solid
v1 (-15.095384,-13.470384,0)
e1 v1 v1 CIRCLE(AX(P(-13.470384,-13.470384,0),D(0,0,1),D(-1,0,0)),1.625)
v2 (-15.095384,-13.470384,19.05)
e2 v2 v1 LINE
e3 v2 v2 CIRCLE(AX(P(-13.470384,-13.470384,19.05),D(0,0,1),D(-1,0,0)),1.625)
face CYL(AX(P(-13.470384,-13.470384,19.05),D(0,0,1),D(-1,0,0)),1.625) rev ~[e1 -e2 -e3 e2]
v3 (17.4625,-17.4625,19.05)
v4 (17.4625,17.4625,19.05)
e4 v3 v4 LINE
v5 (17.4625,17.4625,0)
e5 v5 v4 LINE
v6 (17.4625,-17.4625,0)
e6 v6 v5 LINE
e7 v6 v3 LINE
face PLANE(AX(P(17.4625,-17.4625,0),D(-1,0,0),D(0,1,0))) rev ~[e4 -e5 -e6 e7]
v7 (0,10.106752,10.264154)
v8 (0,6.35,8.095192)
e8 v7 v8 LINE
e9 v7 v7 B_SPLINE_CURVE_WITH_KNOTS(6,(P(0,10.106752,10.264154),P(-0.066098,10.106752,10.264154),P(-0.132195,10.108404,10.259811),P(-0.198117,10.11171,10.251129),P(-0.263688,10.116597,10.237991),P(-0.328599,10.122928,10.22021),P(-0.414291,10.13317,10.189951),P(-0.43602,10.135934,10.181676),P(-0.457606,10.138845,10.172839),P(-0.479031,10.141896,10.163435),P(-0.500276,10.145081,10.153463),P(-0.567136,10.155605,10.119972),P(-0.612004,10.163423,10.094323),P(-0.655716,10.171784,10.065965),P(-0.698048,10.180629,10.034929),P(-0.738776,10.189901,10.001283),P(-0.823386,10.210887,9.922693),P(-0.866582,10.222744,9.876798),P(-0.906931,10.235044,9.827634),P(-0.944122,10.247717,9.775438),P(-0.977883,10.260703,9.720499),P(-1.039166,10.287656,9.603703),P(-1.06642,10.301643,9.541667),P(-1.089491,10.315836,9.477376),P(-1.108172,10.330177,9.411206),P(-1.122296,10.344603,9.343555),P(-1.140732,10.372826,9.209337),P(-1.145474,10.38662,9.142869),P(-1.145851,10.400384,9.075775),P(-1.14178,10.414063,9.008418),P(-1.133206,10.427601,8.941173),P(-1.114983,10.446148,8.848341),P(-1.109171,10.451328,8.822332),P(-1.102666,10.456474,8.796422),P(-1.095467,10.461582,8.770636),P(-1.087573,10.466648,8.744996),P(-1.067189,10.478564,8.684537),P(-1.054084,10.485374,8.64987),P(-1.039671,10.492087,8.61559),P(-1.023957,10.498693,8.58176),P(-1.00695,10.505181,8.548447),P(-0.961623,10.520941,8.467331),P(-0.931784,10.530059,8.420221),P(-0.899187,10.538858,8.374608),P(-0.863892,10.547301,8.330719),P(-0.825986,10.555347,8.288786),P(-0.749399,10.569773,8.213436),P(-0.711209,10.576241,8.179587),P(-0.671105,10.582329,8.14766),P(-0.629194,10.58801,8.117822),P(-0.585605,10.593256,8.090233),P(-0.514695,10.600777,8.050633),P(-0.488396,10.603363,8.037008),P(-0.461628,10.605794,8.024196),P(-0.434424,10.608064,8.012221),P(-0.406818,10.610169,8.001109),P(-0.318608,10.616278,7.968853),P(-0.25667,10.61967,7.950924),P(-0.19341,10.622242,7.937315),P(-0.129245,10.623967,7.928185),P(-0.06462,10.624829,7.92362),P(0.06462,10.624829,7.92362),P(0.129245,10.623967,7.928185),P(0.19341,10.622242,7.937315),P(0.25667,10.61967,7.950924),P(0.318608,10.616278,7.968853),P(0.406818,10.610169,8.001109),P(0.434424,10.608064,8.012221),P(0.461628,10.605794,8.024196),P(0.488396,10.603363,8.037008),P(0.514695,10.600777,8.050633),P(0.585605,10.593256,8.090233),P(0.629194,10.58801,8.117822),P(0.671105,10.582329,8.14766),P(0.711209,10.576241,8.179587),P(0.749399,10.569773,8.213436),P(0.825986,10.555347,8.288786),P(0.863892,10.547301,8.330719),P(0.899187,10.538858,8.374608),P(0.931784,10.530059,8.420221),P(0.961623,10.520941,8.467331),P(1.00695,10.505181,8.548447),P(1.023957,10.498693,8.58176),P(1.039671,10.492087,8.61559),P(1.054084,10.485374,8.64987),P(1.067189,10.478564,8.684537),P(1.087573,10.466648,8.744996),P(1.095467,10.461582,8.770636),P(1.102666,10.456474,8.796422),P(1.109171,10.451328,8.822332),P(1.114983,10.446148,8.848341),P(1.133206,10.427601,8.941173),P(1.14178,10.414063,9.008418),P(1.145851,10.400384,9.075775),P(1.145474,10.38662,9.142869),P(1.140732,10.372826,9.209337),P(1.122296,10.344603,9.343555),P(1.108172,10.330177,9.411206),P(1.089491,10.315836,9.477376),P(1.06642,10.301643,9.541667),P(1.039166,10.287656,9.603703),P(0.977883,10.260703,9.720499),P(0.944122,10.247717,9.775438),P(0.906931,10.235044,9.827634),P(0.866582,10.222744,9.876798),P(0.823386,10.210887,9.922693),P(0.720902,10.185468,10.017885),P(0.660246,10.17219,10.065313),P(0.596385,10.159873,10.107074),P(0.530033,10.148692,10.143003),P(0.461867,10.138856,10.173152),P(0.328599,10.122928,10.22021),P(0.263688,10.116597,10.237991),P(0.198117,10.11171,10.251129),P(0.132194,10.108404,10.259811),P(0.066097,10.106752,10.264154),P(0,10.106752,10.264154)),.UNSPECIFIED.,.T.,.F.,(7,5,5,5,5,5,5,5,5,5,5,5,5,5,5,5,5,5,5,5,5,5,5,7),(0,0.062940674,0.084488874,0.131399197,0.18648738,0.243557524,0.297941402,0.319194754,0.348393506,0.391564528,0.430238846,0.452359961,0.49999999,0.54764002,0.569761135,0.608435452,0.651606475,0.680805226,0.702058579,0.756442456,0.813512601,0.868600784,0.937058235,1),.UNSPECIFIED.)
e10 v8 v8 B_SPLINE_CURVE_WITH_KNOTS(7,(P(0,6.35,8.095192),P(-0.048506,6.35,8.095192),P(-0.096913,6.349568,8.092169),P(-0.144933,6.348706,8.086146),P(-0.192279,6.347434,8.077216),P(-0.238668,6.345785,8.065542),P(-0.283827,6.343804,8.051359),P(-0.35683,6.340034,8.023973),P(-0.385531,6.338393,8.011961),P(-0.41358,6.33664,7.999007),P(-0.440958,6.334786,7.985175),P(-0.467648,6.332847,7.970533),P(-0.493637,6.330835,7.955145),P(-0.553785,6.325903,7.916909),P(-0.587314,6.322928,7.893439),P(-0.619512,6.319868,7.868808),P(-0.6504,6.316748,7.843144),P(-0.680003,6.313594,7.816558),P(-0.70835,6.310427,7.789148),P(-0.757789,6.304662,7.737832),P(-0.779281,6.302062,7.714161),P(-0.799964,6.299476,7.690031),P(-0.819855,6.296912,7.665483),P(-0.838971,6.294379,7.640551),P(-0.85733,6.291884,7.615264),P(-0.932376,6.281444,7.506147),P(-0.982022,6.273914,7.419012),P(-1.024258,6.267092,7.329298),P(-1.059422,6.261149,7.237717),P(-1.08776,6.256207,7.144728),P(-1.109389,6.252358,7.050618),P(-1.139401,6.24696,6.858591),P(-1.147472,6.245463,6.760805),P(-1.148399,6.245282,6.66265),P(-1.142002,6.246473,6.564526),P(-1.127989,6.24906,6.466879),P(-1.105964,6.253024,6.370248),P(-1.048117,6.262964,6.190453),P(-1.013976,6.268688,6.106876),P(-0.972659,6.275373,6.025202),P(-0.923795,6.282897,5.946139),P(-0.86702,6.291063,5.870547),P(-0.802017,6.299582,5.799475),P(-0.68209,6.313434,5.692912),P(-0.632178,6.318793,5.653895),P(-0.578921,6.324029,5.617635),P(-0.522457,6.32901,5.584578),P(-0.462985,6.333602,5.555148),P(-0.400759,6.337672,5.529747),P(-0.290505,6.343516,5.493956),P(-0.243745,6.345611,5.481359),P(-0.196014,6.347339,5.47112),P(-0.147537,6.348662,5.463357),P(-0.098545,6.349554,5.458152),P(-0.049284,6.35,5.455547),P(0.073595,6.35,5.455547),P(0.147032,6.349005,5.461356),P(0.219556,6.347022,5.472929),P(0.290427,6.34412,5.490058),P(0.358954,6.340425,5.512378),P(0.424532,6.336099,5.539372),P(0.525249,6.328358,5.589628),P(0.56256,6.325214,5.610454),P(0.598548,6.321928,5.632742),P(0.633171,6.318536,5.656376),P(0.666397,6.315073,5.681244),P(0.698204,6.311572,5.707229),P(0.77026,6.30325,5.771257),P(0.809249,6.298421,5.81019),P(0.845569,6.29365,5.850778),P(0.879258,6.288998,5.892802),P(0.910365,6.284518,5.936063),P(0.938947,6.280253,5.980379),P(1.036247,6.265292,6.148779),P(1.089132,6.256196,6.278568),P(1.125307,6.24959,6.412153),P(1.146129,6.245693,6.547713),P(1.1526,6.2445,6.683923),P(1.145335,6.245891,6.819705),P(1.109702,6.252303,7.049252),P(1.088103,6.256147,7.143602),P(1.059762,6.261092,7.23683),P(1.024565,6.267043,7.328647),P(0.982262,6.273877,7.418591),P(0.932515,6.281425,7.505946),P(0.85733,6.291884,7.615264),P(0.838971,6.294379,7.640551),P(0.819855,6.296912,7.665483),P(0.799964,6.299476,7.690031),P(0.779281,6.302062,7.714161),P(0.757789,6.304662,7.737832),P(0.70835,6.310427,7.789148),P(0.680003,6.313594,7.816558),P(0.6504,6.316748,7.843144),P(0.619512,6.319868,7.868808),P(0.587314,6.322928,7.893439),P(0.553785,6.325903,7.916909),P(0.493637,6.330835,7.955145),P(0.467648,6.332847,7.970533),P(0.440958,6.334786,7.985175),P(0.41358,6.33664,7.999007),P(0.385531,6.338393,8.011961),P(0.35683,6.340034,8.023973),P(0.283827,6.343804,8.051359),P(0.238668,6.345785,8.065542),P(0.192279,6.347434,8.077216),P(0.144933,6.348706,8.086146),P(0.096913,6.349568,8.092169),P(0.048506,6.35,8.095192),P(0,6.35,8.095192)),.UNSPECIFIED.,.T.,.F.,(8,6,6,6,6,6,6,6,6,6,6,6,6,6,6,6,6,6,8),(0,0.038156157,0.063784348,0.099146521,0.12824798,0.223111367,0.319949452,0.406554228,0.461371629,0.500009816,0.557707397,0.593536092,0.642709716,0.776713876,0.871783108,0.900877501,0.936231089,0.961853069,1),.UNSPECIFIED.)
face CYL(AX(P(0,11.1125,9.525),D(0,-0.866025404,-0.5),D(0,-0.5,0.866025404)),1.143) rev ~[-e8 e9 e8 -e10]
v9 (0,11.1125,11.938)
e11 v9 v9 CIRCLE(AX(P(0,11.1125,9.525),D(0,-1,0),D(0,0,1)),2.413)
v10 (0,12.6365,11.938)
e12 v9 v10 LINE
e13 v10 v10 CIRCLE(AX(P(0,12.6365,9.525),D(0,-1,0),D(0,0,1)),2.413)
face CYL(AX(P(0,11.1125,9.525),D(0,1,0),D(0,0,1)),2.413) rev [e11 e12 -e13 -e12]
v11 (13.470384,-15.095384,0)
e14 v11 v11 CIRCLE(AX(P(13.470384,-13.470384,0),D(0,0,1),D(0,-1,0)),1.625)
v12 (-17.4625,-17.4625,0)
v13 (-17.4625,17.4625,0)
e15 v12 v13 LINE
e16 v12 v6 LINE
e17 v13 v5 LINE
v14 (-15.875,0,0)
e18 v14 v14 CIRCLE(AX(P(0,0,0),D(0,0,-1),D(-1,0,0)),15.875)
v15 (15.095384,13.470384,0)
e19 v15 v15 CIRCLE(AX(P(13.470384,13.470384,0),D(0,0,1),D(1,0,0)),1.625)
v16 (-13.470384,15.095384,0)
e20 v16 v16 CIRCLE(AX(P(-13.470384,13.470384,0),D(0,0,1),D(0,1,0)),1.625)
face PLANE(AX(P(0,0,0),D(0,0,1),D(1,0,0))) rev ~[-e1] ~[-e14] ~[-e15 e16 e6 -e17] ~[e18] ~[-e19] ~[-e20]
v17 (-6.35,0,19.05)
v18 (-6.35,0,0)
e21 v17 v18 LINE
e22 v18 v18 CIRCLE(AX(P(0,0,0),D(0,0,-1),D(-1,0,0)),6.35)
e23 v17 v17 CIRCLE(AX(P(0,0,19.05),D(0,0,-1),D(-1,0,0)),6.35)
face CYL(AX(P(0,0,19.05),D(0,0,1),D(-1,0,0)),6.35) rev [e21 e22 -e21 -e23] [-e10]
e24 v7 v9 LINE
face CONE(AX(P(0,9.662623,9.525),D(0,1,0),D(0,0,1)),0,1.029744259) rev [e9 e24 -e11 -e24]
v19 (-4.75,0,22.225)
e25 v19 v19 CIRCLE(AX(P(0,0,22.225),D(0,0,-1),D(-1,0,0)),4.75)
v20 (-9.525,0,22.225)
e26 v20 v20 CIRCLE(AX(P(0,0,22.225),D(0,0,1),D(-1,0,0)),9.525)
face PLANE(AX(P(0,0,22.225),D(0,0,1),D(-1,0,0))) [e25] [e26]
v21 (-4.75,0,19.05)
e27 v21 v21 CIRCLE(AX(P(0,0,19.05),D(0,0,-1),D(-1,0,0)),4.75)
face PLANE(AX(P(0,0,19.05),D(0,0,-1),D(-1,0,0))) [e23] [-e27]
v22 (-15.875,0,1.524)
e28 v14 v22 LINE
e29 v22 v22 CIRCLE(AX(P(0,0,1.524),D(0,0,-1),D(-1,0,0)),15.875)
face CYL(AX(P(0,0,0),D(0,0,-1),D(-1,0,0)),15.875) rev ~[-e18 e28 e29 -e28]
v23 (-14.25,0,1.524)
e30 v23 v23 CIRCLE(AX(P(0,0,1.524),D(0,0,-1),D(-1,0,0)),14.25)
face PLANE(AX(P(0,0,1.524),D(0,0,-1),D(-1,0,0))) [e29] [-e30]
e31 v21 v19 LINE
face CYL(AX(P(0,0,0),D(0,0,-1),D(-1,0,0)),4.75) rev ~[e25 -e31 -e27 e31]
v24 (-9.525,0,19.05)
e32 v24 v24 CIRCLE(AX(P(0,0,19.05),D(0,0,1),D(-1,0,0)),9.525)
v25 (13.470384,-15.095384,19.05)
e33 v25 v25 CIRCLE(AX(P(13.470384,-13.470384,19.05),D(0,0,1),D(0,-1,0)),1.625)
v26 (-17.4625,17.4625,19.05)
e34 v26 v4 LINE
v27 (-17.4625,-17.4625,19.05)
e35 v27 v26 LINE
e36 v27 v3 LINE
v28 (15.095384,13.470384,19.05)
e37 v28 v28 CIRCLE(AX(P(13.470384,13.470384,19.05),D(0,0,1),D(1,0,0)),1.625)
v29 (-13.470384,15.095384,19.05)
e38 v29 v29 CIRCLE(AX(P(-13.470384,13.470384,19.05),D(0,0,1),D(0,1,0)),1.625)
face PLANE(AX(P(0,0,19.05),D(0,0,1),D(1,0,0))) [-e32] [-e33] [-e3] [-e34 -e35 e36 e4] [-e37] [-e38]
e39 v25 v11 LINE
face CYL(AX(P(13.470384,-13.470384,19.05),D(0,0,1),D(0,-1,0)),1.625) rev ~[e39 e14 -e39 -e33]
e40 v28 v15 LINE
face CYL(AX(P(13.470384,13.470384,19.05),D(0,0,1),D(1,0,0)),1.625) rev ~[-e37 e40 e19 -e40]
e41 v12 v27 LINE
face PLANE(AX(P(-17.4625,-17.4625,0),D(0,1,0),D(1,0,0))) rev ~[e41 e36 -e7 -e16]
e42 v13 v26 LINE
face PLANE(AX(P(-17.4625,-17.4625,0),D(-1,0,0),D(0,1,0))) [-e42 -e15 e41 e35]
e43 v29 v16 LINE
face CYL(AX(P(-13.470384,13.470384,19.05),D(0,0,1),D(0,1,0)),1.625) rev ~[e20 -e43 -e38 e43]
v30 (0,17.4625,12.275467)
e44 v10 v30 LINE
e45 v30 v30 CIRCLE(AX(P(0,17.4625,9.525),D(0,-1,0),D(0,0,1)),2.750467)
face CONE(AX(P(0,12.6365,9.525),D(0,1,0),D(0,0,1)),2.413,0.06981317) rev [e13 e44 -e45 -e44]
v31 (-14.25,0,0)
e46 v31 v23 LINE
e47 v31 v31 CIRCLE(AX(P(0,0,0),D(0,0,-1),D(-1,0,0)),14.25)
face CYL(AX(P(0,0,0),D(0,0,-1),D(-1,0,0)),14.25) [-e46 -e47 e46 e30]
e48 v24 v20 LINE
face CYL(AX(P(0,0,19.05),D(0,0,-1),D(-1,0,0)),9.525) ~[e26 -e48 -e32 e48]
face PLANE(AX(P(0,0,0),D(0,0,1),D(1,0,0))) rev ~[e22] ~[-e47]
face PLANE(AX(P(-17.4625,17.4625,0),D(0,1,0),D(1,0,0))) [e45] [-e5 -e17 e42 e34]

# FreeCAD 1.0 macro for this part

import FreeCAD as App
import Part
import Sketcher
Q = App.Units.Quantity


def add_polygon(sketch, points):
    """Adds a closed chain of lines whose ends are joined by coincident constraints."""
    first, n = sketch.GeometryCount, len(points)
    for a, b in zip(points, points[1:] + points[:1]):
        sketch.addGeometry(Part.LineSegment(App.Vector(*a, 0), App.Vector(*b, 0)), False)
    for i in range(n):
        sketch.addConstraint(Sketcher.Constraint("Coincident", first + i, 2, first + (i + 1) % n, 1))

doc = App.newDocument("Part")
body = doc.addObject("PartDesign::Body", "Body")

# Sketch on XY plane
sketch1 = doc.addObject("Sketcher::SketchObject", "Sketch")
body.addObject(sketch1)
sketch1.AttachmentSupport = (doc.XY_Plane, [""])
sketch1.MapMode = "FlatFace"
add_polygon(sketch1, [(-17, 17), (-17, -17), (17, -17), (17, 17)])  # lines 0-3
sketch1.addConstraint([
    Sketcher.Constraint("Vertical", 0),
    Sketcher.Constraint("Horizontal", 1),
    Sketcher.Constraint("Vertical", 2),
    Sketcher.Constraint("Horizontal", 3),
    Sketcher.Constraint("Symmetric", 0, 2, 2, 2, -1, 1),
    Sketcher.Constraint("Equal", 3, 0),
    Sketcher.Constraint("DistanceX", 1, 1, 1, 2, Q("1.375 in")),
])
pad1 = doc.addObject("PartDesign::Pad", "Pad")
body.addObject(pad1)
pad1.Profile = sketch1
pad1.Length = Q("0.75 in")

# Sketch on XY plane
sketch2 = doc.addObject("Sketcher::SketchObject", "Sketch001")
body.addObject(sketch2)
sketch2.AttachmentSupport = (doc.XY_Plane, [""])
sketch2.MapMode = "FlatFace"
sketch2.addGeometry([
    Part.Circle(App.Vector(0, 0, 0), App.Vector(0, 0, 1), 16),
    Part.Circle(App.Vector(0, 0, 0), App.Vector(0, 0, 1), 14),
], False)
sketch2.addConstraint([
    Sketcher.Constraint("Coincident", 0, 3, -1, 1),
    Sketcher.Constraint("Coincident", 1, 3, -1, 1),
    Sketcher.Constraint("Diameter", 0, Q("1.25 in")),
    Sketcher.Constraint("Diameter", 1, 28.5),
])
pocket1 = doc.addObject("PartDesign::Pocket", "Pocket")
body.addObject(pocket1)
pocket1.Profile = sketch2
pocket1.Length = Q("0.06 in")
pocket1.Reversed = True

# Sketch on XY plane
sketch3 = doc.addObject("Sketcher::SketchObject", "Sketch002")
body.addObject(sketch3)
sketch3.AttachmentSupport = (doc.XY_Plane, [""])
sketch3.MapMode = "FlatFace"
sketch3.AttachmentOffset = App.Placement(App.Vector(0, 0, 0.75 * 25.4), App.Rotation())
sketch3.addGeometry(Part.Circle(App.Vector(13.5, 13.5, 0), App.Vector(0, 0, 1), 1.6), False)
sketch3.addConstraint([
    Sketcher.Constraint("Diameter", 0, 3.25),
    Sketcher.Constraint("DistanceX", -1, 1, 0, 3, 13.470384),
    Sketcher.Constraint("DistanceY", -1, 1, 0, 3, 13.470384),
])
pocket2 = doc.addObject("PartDesign::Pocket", "Pocket001")
body.addObject(pocket2)
pocket2.Profile = sketch3
pocket2.Type = "ThroughAll"
doc.recompute()

polarpattern = doc.addObject("PartDesign::PolarPattern", "PolarPattern")
body.addObject(polarpattern)
polarpattern.Originals = [pocket2]
polarpattern.Axis = (doc.Z_Axis, [""])
polarpattern.Angle = 360
polarpattern.Occurrences = 4
body.Tip = polarpattern

# Sketch on YZ plane
sketch4 = doc.addObject("Sketcher::SketchObject", "Sketch003")
body.addObject(sketch4)
sketch4.AttachmentSupport = (doc.YZ_Plane, [""])
sketch4.MapMode = "FlatFace"
add_polygon(sketch4, [(9.7, 9.5), (17.5, 9.5), (17.5, 12.3), (12.6, 11.9), (11.1, 11.9)])  # lines 0-4
sketch4.addGeometry(Part.LineSegment(App.Vector(17.5, 9.5, 0), App.Vector(9.7, 9.5, 0)), True)  # axis
sketch4.addConstraint([
    Sketcher.Constraint("Horizontal", 0),
    Sketcher.Constraint("Vertical", 1),
    Sketcher.Constraint("Horizontal", 3),
    Sketcher.Constraint("Horizontal", 5),
    Sketcher.Constraint("Coincident", 5, 1, 0, 2),
    Sketcher.Constraint("Equal", 0, 5),
    Sketcher.Constraint("Angle", 2, Q("-176 deg")),
    Sketcher.Constraint("Angle", 4, Q("-121 deg")),
    Sketcher.Constraint("DistanceX", 3, 2, 3, 1, Q("0.06 in")),
    Sketcher.Constraint("DistanceY", -1, 1, 2, 2, Q("0.47 in")),
    Sketcher.Constraint("DistanceX", 2, 2, 1, 2, Q("0.19 in")),
    Sketcher.Constraint("DistanceX", -1, 1, 0, 2, Q("0.6875 in")),
    Sketcher.Constraint("DistanceY", -1, 1, 0, 2, Q("0.375 in")),
])
groove = doc.addObject("PartDesign::Groove", "Groove")
body.addObject(groove)
groove.Profile = sketch4
groove.ReferenceAxis = (sketch4, ["Axis0"])
groove.Angle = 360

# Sketch on XY plane
sketch5 = doc.addObject("Sketcher::SketchObject", "Sketch004")
body.addObject(sketch5)
sketch5.AttachmentSupport = (doc.XY_Plane, [""])
sketch5.MapMode = "FlatFace"
sketch5.AttachmentOffset = App.Placement(App.Vector(0, 0, 0.75 * 25.4), App.Rotation())
sketch5.addGeometry(Part.Circle(App.Vector(0, 0, 0), App.Vector(0, 0, 1), 10), False)
sketch5.addConstraint([
    Sketcher.Constraint("Coincident", 0, 3, -1, 1),
    Sketcher.Constraint("Diameter", 0, Q("0.75 in")),
])
pad2 = doc.addObject("PartDesign::Pad", "Pad001")
body.addObject(pad2)
pad2.Profile = sketch5
pad2.Length = Q("0.125 in")

# Sketch on XY plane
sketch6 = doc.addObject("Sketcher::SketchObject", "Sketch005")
body.addObject(sketch6)
sketch6.AttachmentSupport = (doc.XY_Plane, [""])
sketch6.MapMode = "FlatFace"
sketch6.addGeometry(Part.Circle(App.Vector(0, 0, 0), App.Vector(0, 0, 1), 4.8), False)
sketch6.addConstraint([
    Sketcher.Constraint("Coincident", 0, 3, -1, 1),
    Sketcher.Constraint("Diameter", 0, 9.5),
])
pocket3 = doc.addObject("PartDesign::Pocket", "Pocket002")
body.addObject(pocket3)
pocket3.Profile = sketch6
pocket3.Type = "ThroughAll"
pocket3.Reversed = True

# Sketch on XY plane
sketch7 = doc.addObject("Sketcher::SketchObject", "Sketch006")
body.addObject(sketch7)
sketch7.AttachmentSupport = (doc.XY_Plane, [""])
sketch7.MapMode = "FlatFace"
sketch7.AttachmentOffset = App.Placement(App.Vector(0, 0, 0.75 * 25.4), App.Rotation())
sketch7.addGeometry(Part.Circle(App.Vector(0, 0, 0), App.Vector(0, 0, 1), 6), False)
sketch7.addConstraint([
    Sketcher.Constraint("Coincident", 0, 3, -1, 1),
    Sketcher.Constraint("Diameter", 0, Q("0.5 in")),
])
pocket4 = doc.addObject("PartDesign::Pocket", "Pocket003")
body.addObject(pocket4)
pocket4.Profile = sketch7
pocket4.Length = Q("0.75 in")

# Sketch on YZ plane
sketch8 = doc.addObject("Sketcher::SketchObject", "Sketch007")
body.addObject(sketch8)
sketch8.AttachmentSupport = (doc.YZ_Plane, [""])
sketch8.MapMode = "FlatFace"
add_polygon(sketch8, [(11.1, 9.5), (10.5, 10.5), (-0.6, 4.1), (0, 3.1)])  # lines 0-3
sketch8.addGeometry(Part.LineSegment(App.Vector(11.1, 9.5, 0), App.Vector(0, 3.1, 0)), True)  # axis
sketch8.addConstraint([
    Sketcher.Constraint("Coincident", 4, 1, 3, 2),
    Sketcher.Constraint("Coincident", 4, 2, 2, 2),
    Sketcher.Constraint("PointOnObject", 2, 2, -2),
    Sketcher.Constraint("Perpendicular", 0, 1),
    Sketcher.Constraint("Perpendicular", 1, 2),
    Sketcher.Constraint("Perpendicular", 2, 3),
    Sketcher.Constraint("Angle", 0, Q("120 deg")),
    Sketcher.Constraint("DistanceX", 1, 2, 3, 2, Q("0.46 in")),
    Sketcher.Constraint("Distance", 0, Q("0.045 in")),
    Sketcher.Constraint("DistanceY", -1, 1, 3, 2, Q("0.375 in")),
])
groove2 = doc.addObject("PartDesign::Groove", "Groove001")
body.addObject(groove2)
groove2.Profile = sketch8
groove2.ReferenceAxis = (sketch8, ["Axis0"])
groove2.Angle = 360

doc.recompute()
